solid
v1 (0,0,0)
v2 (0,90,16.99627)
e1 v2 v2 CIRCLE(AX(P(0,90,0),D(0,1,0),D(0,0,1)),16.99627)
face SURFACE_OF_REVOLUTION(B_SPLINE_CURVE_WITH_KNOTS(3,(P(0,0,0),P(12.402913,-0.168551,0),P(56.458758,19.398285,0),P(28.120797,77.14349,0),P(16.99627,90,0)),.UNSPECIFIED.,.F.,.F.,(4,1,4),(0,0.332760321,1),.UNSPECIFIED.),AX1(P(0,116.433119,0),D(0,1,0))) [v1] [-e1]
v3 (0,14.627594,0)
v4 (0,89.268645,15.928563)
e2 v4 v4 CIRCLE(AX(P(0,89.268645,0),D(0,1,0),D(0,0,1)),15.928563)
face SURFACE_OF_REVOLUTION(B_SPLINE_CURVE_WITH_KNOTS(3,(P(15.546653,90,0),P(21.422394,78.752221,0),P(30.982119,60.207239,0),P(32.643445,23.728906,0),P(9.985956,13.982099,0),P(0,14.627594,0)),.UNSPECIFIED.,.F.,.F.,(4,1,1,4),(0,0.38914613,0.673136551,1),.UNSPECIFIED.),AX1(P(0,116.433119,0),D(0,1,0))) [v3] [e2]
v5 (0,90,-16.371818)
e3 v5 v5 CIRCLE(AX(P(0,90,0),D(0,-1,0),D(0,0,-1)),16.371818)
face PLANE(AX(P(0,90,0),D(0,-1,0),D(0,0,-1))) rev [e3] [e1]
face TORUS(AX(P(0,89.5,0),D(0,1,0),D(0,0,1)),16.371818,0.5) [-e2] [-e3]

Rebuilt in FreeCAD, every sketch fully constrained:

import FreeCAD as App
import Part
import Sketcher
from FreeCAD import Vector


def edges_at(feature, points):
    """Names of the edges that pass closest to the given points."""
    edges = feature.Shape.Edges
    near = lambda p: min(range(len(edges)), key=lambda i: edges[i].distToShape(Part.Vertex(*p))[0])
    return sorted({f"Edge{near(p) + 1}" for p in points})

doc = App.newDocument("Part")
body = doc.addObject("PartDesign::Body", "Body")

sketch1 = body.newObject("Sketcher::SketchObject", "Sketch")
sketch1.AttachmentSupport = (doc.getObject("XY_Plane"), [""])
sketch1.MapMode = "FlatFace"
sketch1.addGeometry(Part.BSplineCurve([Vector(0, 0, 0), Vector(12.402913, -0.168551, 0), Vector(56.458758, 19.398285, 0), Vector(28.120797, 77.14349, 0), Vector(16.99627, 90, 0)], [4, 1, 4], [0, 0.332760321, 1], False, 3, [1, 1, 1, 1, 1], False), False)
sketch1.addGeometry(Part.LineSegment(Vector(16.99627, 90, 0), Vector(15.546653, 90, 0)), False)
sketch1.addGeometry(Part.BSplineCurve([Vector(15.546653, 90, 0), Vector(21.422394, 78.752221, 0), Vector(30.982119, 60.207239, 0), Vector(32.643445, 23.728906, 0), Vector(9.985956, 13.982099, 0), Vector(0, 14.627594, 0)], [4, 1, 1, 4], [0, 0.38914613, 0.673136551, 1], False, 3, [1, 1, 1, 1, 1, 1], False), False)
sketch1.addGeometry(Part.LineSegment(Vector(0, 14.627594, 0), Vector(0, 0, 0)), False)
sketch1.addConstraint(Sketcher.Constraint("Block", 0))
sketch1.addConstraint(Sketcher.Constraint("Block", 2))
sketch1.addConstraint(Sketcher.Constraint("Coincident", 0, 2, 1, 1))
sketch1.addConstraint(Sketcher.Constraint("Coincident", 1, 2, 2, 1))
sketch1.addConstraint(Sketcher.Constraint("Coincident", 2, 2, 3, 1))
sketch1.addConstraint(Sketcher.Constraint("Coincident", 3, 2, 0, 1))
revolution = body.newObject("PartDesign::Revolution", "Revolution")
revolution.Profile = sketch1
revolution.ReferenceAxis = (sketch1, ["V_Axis"])
revolution.Angle = 360
doc.recompute()

fillet = body.newObject("PartDesign::Fillet", "Fillet")
fillet.Base = (revolution, edges_at(revolution, [(-15.547, 90, 0)]))
fillet.Radius = 0.5

doc.recompute()
